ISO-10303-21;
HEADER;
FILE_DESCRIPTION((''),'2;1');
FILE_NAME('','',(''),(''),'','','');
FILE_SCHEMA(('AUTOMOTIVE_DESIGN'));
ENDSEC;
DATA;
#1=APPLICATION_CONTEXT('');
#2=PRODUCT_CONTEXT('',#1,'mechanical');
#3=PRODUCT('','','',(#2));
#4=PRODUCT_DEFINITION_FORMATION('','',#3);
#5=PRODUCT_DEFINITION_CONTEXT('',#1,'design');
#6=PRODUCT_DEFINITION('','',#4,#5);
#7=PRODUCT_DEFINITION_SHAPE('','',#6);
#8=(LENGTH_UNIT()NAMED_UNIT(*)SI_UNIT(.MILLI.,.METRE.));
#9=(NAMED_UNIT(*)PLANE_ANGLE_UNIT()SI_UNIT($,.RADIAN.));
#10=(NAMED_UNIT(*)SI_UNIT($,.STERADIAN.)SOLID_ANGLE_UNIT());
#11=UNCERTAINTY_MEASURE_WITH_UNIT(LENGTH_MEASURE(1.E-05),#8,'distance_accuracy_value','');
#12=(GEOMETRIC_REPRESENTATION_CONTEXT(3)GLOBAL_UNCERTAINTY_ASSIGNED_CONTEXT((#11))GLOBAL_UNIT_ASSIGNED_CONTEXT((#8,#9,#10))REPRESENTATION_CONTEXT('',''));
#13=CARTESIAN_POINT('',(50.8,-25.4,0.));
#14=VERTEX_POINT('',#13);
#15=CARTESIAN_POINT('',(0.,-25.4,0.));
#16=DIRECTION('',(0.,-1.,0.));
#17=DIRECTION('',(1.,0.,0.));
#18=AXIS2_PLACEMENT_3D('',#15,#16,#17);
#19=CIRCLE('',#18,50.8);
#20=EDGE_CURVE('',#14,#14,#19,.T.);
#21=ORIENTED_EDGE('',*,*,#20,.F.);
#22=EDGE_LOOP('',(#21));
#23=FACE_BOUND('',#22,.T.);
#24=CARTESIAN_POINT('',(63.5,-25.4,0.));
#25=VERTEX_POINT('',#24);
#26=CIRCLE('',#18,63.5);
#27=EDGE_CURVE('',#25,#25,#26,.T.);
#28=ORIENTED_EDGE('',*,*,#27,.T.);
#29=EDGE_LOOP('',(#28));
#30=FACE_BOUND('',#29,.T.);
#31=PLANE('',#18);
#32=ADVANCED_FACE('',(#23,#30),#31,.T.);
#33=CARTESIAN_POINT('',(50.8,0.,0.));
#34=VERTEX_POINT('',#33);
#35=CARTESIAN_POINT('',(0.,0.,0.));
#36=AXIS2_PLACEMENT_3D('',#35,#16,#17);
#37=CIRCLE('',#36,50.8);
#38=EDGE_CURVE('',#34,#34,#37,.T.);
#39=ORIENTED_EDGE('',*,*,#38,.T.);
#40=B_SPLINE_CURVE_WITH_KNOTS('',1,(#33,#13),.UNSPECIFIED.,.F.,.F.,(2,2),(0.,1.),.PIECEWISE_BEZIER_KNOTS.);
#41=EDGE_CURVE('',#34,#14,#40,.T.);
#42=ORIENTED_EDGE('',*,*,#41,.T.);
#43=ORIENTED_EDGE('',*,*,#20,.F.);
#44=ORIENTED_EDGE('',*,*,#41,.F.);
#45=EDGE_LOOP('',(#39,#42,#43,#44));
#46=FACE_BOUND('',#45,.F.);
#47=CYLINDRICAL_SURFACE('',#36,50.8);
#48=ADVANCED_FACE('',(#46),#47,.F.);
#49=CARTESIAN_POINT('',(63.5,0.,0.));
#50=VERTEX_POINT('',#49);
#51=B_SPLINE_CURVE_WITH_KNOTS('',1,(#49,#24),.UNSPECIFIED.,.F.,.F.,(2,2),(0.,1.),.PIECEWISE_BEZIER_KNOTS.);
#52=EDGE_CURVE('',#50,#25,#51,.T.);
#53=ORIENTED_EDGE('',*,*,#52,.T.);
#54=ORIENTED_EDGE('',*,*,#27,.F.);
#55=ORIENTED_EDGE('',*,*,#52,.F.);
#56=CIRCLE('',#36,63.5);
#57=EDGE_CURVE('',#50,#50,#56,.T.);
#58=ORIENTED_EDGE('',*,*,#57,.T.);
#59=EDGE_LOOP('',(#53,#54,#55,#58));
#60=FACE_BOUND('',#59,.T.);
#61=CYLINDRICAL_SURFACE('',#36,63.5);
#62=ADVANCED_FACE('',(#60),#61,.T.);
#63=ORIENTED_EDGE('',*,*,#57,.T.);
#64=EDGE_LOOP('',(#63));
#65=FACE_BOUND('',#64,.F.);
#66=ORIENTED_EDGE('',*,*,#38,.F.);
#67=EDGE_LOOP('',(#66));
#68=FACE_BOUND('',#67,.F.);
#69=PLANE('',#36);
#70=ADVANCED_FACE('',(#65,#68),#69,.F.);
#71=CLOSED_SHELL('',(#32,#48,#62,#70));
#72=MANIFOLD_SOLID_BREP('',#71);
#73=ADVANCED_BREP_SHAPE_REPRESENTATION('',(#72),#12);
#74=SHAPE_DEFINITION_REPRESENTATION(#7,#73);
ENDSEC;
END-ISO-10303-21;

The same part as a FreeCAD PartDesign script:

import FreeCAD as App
import Part
import Sketcher

V = App.Vector
Q = App.Units.Quantity


def faces_at(feature, points):
    """Names of the faces that lie closest to the given points."""
    faces = feature.Shape.Faces
    near = lambda p: min(range(len(faces)), key=lambda i: faces[i].distToShape(Part.Vertex(*p))[0])
    return sorted({f"Face{near(p) + 1}" for p in points})

doc = App.newDocument("Part")
params = doc.addObject("Spreadsheet::Sheet", "Params")
for row, (alias, value) in enumerate([
    ("sketch1_diameter", "5 in"),
    ("sketch2_diameter", "5 in"),
    ("thickness_wall", "0.5 in"),
], start=1):
    params.set(f"A{row}", alias)
    params.set(f"B{row}", "=" + value)
    params.setAlias(f"B{row}", alias)

body = doc.addObject("PartDesign::Body", "Body")

# Sketch on XZ plane
sketch1 = body.newObject("Sketcher::SketchObject", "Sketch")
sketch1.AttachmentSupport = (doc.getObject("XZ_Plane"), [""])
sketch1.MapMode = "FlatFace"
sketch1.addGeometry(Part.Circle(V(0, 0, 0), V(0, 0, 1), 64), False)
sketch1.addConstraint([
    Sketcher.Constraint("Coincident", 0, 3, -1, 1),
    Sketcher.Constraint("Diameter", 0, Q("5 in")),
])
sketch1.setExpression("Constraints[1]", "Params.sketch1_diameter")

# Sketch on XZ plane
sketch2 = body.newObject("Sketcher::SketchObject", "Sketch001")
sketch2.AttachmentSupport = (doc.getObject("XZ_Plane"), [""])
sketch2.MapMode = "FlatFace"
sketch2.AttachmentOffset = App.Placement(V(0, 0, 1 * 25.4), App.Rotation())
sketch2.addGeometry(Part.Circle(V(0, 0, 0), V(0, 0, 1), 64), False)
sketch2.addConstraint([
    Sketcher.Constraint("Coincident", 0, 3, -1, 1),
    Sketcher.Constraint("Diameter", 0, Q("5 in")),
])
sketch2.setExpression("Constraints[1]", "Params.sketch2_diameter")

additiveloft = body.newObject("PartDesign::AdditiveLoft", "AdditiveLoft")
additiveloft.Profile = sketch1
additiveloft.Sections = [sketch2]
doc.recompute()

thickness = body.newObject("PartDesign::Thickness", "Thickness")
thickness.Base = (additiveloft, faces_at(additiveloft, [(0, -25.4, 0), (0, 0, 0)]))
thickness.setExpression("Value", "Params.thickness_wall")
thickness.Reversed = True
thickness.Join = "Arc"

doc.recompute()
